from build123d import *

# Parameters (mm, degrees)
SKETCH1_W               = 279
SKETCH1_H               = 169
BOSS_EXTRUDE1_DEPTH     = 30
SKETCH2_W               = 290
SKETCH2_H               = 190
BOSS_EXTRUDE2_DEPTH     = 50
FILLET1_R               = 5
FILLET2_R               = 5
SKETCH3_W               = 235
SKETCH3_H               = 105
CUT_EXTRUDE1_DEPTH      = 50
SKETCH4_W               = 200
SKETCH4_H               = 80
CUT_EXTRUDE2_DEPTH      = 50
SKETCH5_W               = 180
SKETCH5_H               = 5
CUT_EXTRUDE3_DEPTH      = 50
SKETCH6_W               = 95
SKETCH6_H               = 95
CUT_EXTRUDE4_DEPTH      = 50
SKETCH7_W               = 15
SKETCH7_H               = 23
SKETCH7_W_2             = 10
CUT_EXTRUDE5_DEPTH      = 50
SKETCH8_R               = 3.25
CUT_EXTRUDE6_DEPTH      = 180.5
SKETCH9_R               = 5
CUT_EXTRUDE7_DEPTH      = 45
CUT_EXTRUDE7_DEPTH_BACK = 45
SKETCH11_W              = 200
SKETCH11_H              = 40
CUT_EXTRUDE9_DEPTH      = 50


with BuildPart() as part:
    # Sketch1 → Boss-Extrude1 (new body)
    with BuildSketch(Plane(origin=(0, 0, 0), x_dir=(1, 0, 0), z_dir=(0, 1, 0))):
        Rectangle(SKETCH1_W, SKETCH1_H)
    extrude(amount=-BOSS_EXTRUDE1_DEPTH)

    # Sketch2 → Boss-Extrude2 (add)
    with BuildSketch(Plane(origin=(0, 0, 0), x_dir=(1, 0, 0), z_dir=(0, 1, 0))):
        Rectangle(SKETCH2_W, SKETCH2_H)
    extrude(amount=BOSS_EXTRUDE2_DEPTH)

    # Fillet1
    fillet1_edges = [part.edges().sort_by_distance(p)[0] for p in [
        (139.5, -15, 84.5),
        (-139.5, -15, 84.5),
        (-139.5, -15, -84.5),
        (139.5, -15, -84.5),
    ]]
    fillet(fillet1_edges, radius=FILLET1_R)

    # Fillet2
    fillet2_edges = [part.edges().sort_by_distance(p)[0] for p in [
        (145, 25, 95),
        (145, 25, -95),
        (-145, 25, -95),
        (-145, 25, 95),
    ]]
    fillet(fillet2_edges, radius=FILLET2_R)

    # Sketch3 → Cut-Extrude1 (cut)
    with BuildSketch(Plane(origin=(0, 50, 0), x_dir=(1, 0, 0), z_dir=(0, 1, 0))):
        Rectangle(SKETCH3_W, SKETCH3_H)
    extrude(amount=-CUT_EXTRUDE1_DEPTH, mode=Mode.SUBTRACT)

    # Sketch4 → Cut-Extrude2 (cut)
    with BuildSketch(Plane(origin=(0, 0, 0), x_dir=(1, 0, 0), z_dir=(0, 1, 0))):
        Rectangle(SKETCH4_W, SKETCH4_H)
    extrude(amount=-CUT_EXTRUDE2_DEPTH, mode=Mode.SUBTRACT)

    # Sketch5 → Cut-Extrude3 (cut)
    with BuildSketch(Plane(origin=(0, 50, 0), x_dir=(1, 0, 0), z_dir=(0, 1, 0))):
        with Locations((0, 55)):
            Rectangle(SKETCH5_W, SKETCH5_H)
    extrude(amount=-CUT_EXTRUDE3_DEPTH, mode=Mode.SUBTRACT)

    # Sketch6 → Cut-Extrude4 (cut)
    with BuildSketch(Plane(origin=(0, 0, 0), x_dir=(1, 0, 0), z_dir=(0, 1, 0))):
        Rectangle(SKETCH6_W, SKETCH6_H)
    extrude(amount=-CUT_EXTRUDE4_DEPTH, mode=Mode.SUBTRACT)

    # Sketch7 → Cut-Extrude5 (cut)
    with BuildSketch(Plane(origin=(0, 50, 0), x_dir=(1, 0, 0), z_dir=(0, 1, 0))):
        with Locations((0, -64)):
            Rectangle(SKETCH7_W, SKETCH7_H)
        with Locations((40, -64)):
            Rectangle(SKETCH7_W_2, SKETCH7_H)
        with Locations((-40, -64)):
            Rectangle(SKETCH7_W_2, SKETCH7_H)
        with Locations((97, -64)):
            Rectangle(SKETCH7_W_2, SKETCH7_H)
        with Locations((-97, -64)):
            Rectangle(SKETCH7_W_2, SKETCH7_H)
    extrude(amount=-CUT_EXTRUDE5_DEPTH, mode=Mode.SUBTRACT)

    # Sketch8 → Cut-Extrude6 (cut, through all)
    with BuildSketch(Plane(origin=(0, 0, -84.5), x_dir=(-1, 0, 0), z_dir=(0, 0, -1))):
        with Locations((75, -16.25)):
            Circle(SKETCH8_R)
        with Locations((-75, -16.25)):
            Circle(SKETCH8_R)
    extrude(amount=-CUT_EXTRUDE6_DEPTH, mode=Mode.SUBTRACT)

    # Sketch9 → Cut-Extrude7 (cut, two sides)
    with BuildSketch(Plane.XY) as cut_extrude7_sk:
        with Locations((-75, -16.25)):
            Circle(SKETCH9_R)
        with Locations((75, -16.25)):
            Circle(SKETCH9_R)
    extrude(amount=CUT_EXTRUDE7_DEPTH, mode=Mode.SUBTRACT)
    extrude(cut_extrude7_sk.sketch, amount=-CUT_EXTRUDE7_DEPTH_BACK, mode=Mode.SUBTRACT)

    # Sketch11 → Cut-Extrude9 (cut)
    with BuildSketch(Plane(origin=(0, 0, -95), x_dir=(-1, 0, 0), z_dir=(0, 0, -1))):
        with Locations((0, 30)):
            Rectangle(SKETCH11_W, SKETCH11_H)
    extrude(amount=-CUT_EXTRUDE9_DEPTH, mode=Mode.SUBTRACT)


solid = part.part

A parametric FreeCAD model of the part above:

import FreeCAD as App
import Part
import Sketcher

V = App.Vector
Q = App.Units.Quantity


def edges_at(feature, points):
    """Names of the edges that pass closest to the given points."""
    edges = feature.Shape.Edges
    near = lambda p: min(range(len(edges)), key=lambda i: edges[i].distToShape(Part.Vertex(*p))[0])
    return sorted({f"Edge{near(p) + 1}" for p in points})

doc = App.newDocument("Part")
params = doc.addObject("Spreadsheet::Sheet", "Params")
for row, (alias, value) in enumerate([
    ("sketch1_width", "279 mm"),
    ("sketch1_height", "169 mm"),
    ("pad1_length", "30 mm"),
    ("sketch2_width", "290 mm"),
    ("sketch2_height", "190 mm"),
    ("pad2_length", "50 mm"),
    ("fillet_radius", "5 mm"),
    ("fillet2_radius", "5 mm"),
    ("sketch3_width", "235 mm"),
    ("sketch3_height", "105 mm"),
    ("pocket1_length", "50 mm"),
    ("sketch4_width", "200 mm"),
    ("sketch4_height", "80 mm"),
    ("pocket2_length", "50 mm"),
    ("sketch5_width", "180 mm"),
    ("sketch5_height", "5 mm"),
    ("pocket3_length", "50 mm"),
    ("sketch6_width", "95 mm"),
    ("pocket4_length", "50 mm"),
    ("sketch7_width", "15 mm"),
    ("sketch7_width2", "10 mm"),
    ("sketch7_height", "23 mm"),
    ("pocket5_length", "50 mm"),
    ("sketch8_diameter", "6.5 mm"),
    ("sketch9_diameter", "10 mm"),
    ("pocket7_length", "45 mm"),
    ("pocket7_length2", "45 mm"),
    ("sketch10_width", "200 mm"),
    ("sketch10_height", "40 mm"),
    ("pocket8_length", "50 mm"),
], start=1):
    params.set(f"A{row}", alias)
    params.set(f"B{row}", "=" + value)
    params.setAlias(f"B{row}", alias)

body = doc.addObject("PartDesign::Body", "Body")

# Sketch on XZ plane
sketch1 = doc.addObject("Sketcher::SketchObject", "Sketch")
body.addObject(sketch1)
sketch1.AttachmentSupport = (doc.XZ_Plane, [""])
sketch1.MapMode = "FlatFace"
sketch1.addGeometry(Part.LineSegment(V(-139.5, -84.5, 0), V(-139.5, 84.5, 0)), False)
sketch1.addGeometry(Part.LineSegment(V(-139.5, 84.5, 0), V(139.5, 84.5, 0)), False)
sketch1.addGeometry(Part.LineSegment(V(139.5, 84.5, 0), V(139.5, -84.5, 0)), False)
sketch1.addGeometry(Part.LineSegment(V(139.5, -84.5, 0), V(-139.5, -84.5, 0)), False)
sketch1.addConstraint(Sketcher.Constraint("Coincident", 0, 2, 1, 1))
sketch1.addConstraint(Sketcher.Constraint("Coincident", 1, 2, 2, 1))
sketch1.addConstraint(Sketcher.Constraint("Coincident", 2, 2, 3, 1))
sketch1.addConstraint(Sketcher.Constraint("Coincident", 3, 2, 0, 1))
sketch1.addConstraint(Sketcher.Constraint("Vertical", 0))
sketch1.addConstraint(Sketcher.Constraint("Horizontal", 1))
sketch1.addConstraint(Sketcher.Constraint("Vertical", 2))
sketch1.addConstraint(Sketcher.Constraint("Horizontal", 3))
sketch1.addConstraint(Sketcher.Constraint("Symmetric", 0, 2, 2, 2, -1, 1))
sketch1.addConstraint(Sketcher.Constraint("DistanceX", 1, 1, 1, 2, Q("279 mm")))
sketch1.addConstraint(Sketcher.Constraint("DistanceY", 0, 1, 0, 2, Q("169 mm")))
sketch1.setExpression("Constraints[9]", "Params.sketch1_width")
sketch1.setExpression("Constraints[10]", "Params.sketch1_height")
pad1 = doc.addObject("PartDesign::Pad", "Pad")
body.addObject(pad1)
pad1.Profile = sketch1
pad1.setExpression("Length", "Params.pad1_length")

# Sketch on XZ plane
sketch2 = doc.addObject("Sketcher::SketchObject", "Sketch001")
body.addObject(sketch2)
sketch2.AttachmentSupport = (doc.XZ_Plane, [""])
sketch2.MapMode = "FlatFace"
sketch2.addGeometry(Part.LineSegment(V(-145, -95, 0), V(-145, 95, 0)), False)
sketch2.addGeometry(Part.LineSegment(V(-145, 95, 0), V(145, 95, 0)), False)
sketch2.addGeometry(Part.LineSegment(V(145, 95, 0), V(145, -95, 0)), False)
sketch2.addGeometry(Part.LineSegment(V(145, -95, 0), V(-145, -95, 0)), False)
sketch2.addConstraint(Sketcher.Constraint("Coincident", 0, 2, 1, 1))
sketch2.addConstraint(Sketcher.Constraint("Coincident", 1, 2, 2, 1))
sketch2.addConstraint(Sketcher.Constraint("Coincident", 2, 2, 3, 1))
sketch2.addConstraint(Sketcher.Constraint("Coincident", 3, 2, 0, 1))
sketch2.addConstraint(Sketcher.Constraint("Vertical", 0))
sketch2.addConstraint(Sketcher.Constraint("Horizontal", 1))
sketch2.addConstraint(Sketcher.Constraint("Vertical", 2))
sketch2.addConstraint(Sketcher.Constraint("Horizontal", 3))
sketch2.addConstraint(Sketcher.Constraint("Symmetric", 0, 2, 2, 2, -1, 1))
sketch2.addConstraint(Sketcher.Constraint("DistanceX", 1, 1, 1, 2, Q("290 mm")))
sketch2.addConstraint(Sketcher.Constraint("DistanceY", 0, 1, 0, 2, Q("190 mm")))
sketch2.setExpression("Constraints[9]", "Params.sketch2_width")
sketch2.setExpression("Constraints[10]", "Params.sketch2_height")
pad2 = doc.addObject("PartDesign::Pad", "Pad001")
body.addObject(pad2)
pad2.Profile = sketch2
pad2.setExpression("Length", "Params.pad2_length")
pad2.Reversed = True
doc.recompute()

fillet = doc.addObject("PartDesign::Fillet", "Fillet")
body.addObject(fillet)
fillet.Base = (pad2, edges_at(pad2, [
    (139.5, -15, 84.5),
    (-139.5, -15, 84.5),
    (-139.5, -15, -84.5),
    (139.5, -15, -84.5),
]))
fillet.setExpression("Radius", "Params.fillet_radius")
doc.recompute()

fillet2 = doc.addObject("PartDesign::Fillet", "Fillet001")
body.addObject(fillet2)
fillet2.Base = (fillet, edges_at(fillet, [
    (145, 25, 95),
    (145, 25, -95),
    (-145, 25, -95),
    (-145, 25, 95),
]))
fillet2.setExpression("Radius", "Params.fillet2_radius")

# Sketch on XZ plane
sketch3 = doc.addObject("Sketcher::SketchObject", "Sketch002")
body.addObject(sketch3)
sketch3.AttachmentSupport = (doc.XZ_Plane, [""])
sketch3.MapMode = "FlatFace"
sketch3.AttachmentOffset = App.Placement(V(0, 0, -50), App.Rotation())
sketch3.addGeometry(Part.LineSegment(V(-117.5, -52.5, 0), V(-117.5, 52.5, 0)), False)
sketch3.addGeometry(Part.LineSegment(V(-117.5, 52.5, 0), V(117.5, 52.5, 0)), False)
sketch3.addGeometry(Part.LineSegment(V(117.5, 52.5, 0), V(117.5, -52.5, 0)), False)
sketch3.addGeometry(Part.LineSegment(V(117.5, -52.5, 0), V(-117.5, -52.5, 0)), False)
sketch3.addConstraint(Sketcher.Constraint("Coincident", 0, 2, 1, 1))
sketch3.addConstraint(Sketcher.Constraint("Coincident", 1, 2, 2, 1))
sketch3.addConstraint(Sketcher.Constraint("Coincident", 2, 2, 3, 1))
sketch3.addConstraint(Sketcher.Constraint("Coincident", 3, 2, 0, 1))
sketch3.addConstraint(Sketcher.Constraint("Vertical", 0))
sketch3.addConstraint(Sketcher.Constraint("Horizontal", 1))
sketch3.addConstraint(Sketcher.Constraint("Vertical", 2))
sketch3.addConstraint(Sketcher.Constraint("Horizontal", 3))
sketch3.addConstraint(Sketcher.Constraint("Symmetric", 0, 2, 2, 2, -1, 1))
sketch3.addConstraint(Sketcher.Constraint("DistanceX", 1, 1, 1, 2, Q("235 mm")))
sketch3.addConstraint(Sketcher.Constraint("DistanceY", 0, 1, 0, 2, Q("105 mm")))
sketch3.setExpression("Constraints[9]", "Params.sketch3_width")
sketch3.setExpression("Constraints[10]", "Params.sketch3_height")
pocket1 = doc.addObject("PartDesign::Pocket", "Pocket")
body.addObject(pocket1)
pocket1.Profile = sketch3
pocket1.setExpression("Length", "Params.pocket1_length")
pocket1.Reversed = True

# Sketch on XZ plane
sketch4 = doc.addObject("Sketcher::SketchObject", "Sketch003")
body.addObject(sketch4)
sketch4.AttachmentSupport = (doc.XZ_Plane, [""])
sketch4.MapMode = "FlatFace"
sketch4.addGeometry(Part.LineSegment(V(-100, -40, 0), V(-100, 40, 0)), False)
sketch4.addGeometry(Part.LineSegment(V(-100, 40, 0), V(100, 40, 0)), False)
sketch4.addGeometry(Part.LineSegment(V(100, 40, 0), V(100, -40, 0)), False)
sketch4.addGeometry(Part.LineSegment(V(100, -40, 0), V(-100, -40, 0)), False)
sketch4.addConstraint(Sketcher.Constraint("Coincident", 0, 2, 1, 1))
sketch4.addConstraint(Sketcher.Constraint("Coincident", 1, 2, 2, 1))
sketch4.addConstraint(Sketcher.Constraint("Coincident", 2, 2, 3, 1))
sketch4.addConstraint(Sketcher.Constraint("Coincident", 3, 2, 0, 1))
sketch4.addConstraint(Sketcher.Constraint("Vertical", 0))
sketch4.addConstraint(Sketcher.Constraint("Horizontal", 1))
sketch4.addConstraint(Sketcher.Constraint("Vertical", 2))
sketch4.addConstraint(Sketcher.Constraint("Horizontal", 3))
sketch4.addConstraint(Sketcher.Constraint("Symmetric", 0, 2, 2, 2, -1, 1))
sketch4.addConstraint(Sketcher.Constraint("DistanceX", 1, 1, 1, 2, Q("200 mm")))
sketch4.addConstraint(Sketcher.Constraint("DistanceY", 0, 1, 0, 2, Q("80 mm")))
sketch4.setExpression("Constraints[9]", "Params.sketch4_width")
sketch4.setExpression("Constraints[10]", "Params.sketch4_height")
pocket2 = doc.addObject("PartDesign::Pocket", "Pocket001")
body.addObject(pocket2)
pocket2.Profile = sketch4
pocket2.setExpression("Length", "Params.pocket2_length")
pocket2.Reversed = True

# Sketch on XZ plane
sketch5 = doc.addObject("Sketcher::SketchObject", "Sketch004")
body.addObject(sketch5)
sketch5.AttachmentSupport = (doc.XZ_Plane, [""])
sketch5.MapMode = "FlatFace"
sketch5.AttachmentOffset = App.Placement(V(0, 0, -50), App.Rotation())
sketch5.addGeometry(Part.LineSegment(V(-90, -57.5, 0), V(-90, -52.5, 0)), False)
sketch5.addGeometry(Part.LineSegment(V(-90, -52.5, 0), V(90, -52.5, 0)), False)
sketch5.addGeometry(Part.LineSegment(V(90, -52.5, 0), V(90, -57.5, 0)), False)
sketch5.addGeometry(Part.LineSegment(V(90, -57.5, 0), V(-90, -57.5, 0)), False)
sketch5.addConstraint(Sketcher.Constraint("Coincident", 0, 2, 1, 1))
sketch5.addConstraint(Sketcher.Constraint("Coincident", 1, 2, 2, 1))
sketch5.addConstraint(Sketcher.Constraint("Coincident", 2, 2, 3, 1))
sketch5.addConstraint(Sketcher.Constraint("Coincident", 3, 2, 0, 1))
sketch5.addConstraint(Sketcher.Constraint("Vertical", 0))
sketch5.addConstraint(Sketcher.Constraint("Horizontal", 1))
sketch5.addConstraint(Sketcher.Constraint("Vertical", 2))
sketch5.addConstraint(Sketcher.Constraint("Horizontal", 3))
sketch5.addConstraint(Sketcher.Constraint("DistanceX", 1, 1, 1, 2, Q("180 mm")))
sketch5.addConstraint(Sketcher.Constraint("DistanceY", 0, 1, 0, 2, Q("5 mm")))
sketch5.addConstraint(Sketcher.Constraint("DistanceX", 0, 2, -1, 1, Q("90 mm")))
sketch5.addConstraint(Sketcher.Constraint("DistanceY", 0, 2, -1, 1, Q("52.5 mm")))
sketch5.setExpression("Constraints[8]", "Params.sketch5_width")
sketch5.setExpression("Constraints[9]", "Params.sketch5_height")
pocket3 = doc.addObject("PartDesign::Pocket", "Pocket002")
body.addObject(pocket3)
pocket3.Profile = sketch5
pocket3.setExpression("Length", "Params.pocket3_length")
pocket3.Reversed = True

# Sketch on XZ plane
sketch6 = doc.addObject("Sketcher::SketchObject", "Sketch005")
body.addObject(sketch6)
sketch6.AttachmentSupport = (doc.XZ_Plane, [""])
sketch6.MapMode = "FlatFace"
sketch6.addGeometry(Part.LineSegment(V(-47.5, -47.5, 0), V(-47.5, 47.5, 0)), False)
sketch6.addGeometry(Part.LineSegment(V(-47.5, 47.5, 0), V(47.5, 47.5, 0)), False)
sketch6.addGeometry(Part.LineSegment(V(47.5, 47.5, 0), V(47.5, -47.5, 0)), False)
sketch6.addGeometry(Part.LineSegment(V(47.5, -47.5, 0), V(-47.5, -47.5, 0)), False)
sketch6.addConstraint(Sketcher.Constraint("Coincident", 0, 2, 1, 1))
sketch6.addConstraint(Sketcher.Constraint("Coincident", 1, 2, 2, 1))
sketch6.addConstraint(Sketcher.Constraint("Coincident", 2, 2, 3, 1))
sketch6.addConstraint(Sketcher.Constraint("Coincident", 3, 2, 0, 1))
sketch6.addConstraint(Sketcher.Constraint("Vertical", 0))
sketch6.addConstraint(Sketcher.Constraint("Horizontal", 1))
sketch6.addConstraint(Sketcher.Constraint("Vertical", 2))
sketch6.addConstraint(Sketcher.Constraint("Horizontal", 3))
sketch6.addConstraint(Sketcher.Constraint("Symmetric", 0, 2, 2, 2, -1, 1))
sketch6.addConstraint(Sketcher.Constraint("Equal", 3, 0))
sketch6.addConstraint(Sketcher.Constraint("DistanceX", 1, 1, 1, 2, Q("95 mm")))
sketch6.setExpression("Constraints[10]", "Params.sketch6_width")
pocket4 = doc.addObject("PartDesign::Pocket", "Pocket003")
body.addObject(pocket4)
pocket4.Profile = sketch6
pocket4.setExpression("Length", "Params.pocket4_length")
pocket4.Reversed = True

# Sketch on XZ plane
sketch7 = doc.addObject("Sketcher::SketchObject", "Sketch006")
body.addObject(sketch7)
sketch7.AttachmentSupport = (doc.XZ_Plane, [""])
sketch7.MapMode = "FlatFace"
sketch7.AttachmentOffset = App.Placement(V(0, 0, -50), App.Rotation())
sketch7.addGeometry(Part.LineSegment(V(-7.5, 52.5, 0), V(-7.5, 75.5, 0)), False)
sketch7.addGeometry(Part.LineSegment(V(-7.5, 75.5, 0), V(7.5, 75.5, 0)), False)
sketch7.addGeometry(Part.LineSegment(V(7.5, 75.5, 0), V(7.5, 52.5, 0)), False)
sketch7.addGeometry(Part.LineSegment(V(7.5, 52.5, 0), V(-7.5, 52.5, 0)), False)
sketch7.addGeometry(Part.LineSegment(V(35, 52.5, 0), V(35, 75.5, 0)), False)
sketch7.addGeometry(Part.LineSegment(V(35, 75.5, 0), V(45, 75.5, 0)), False)
sketch7.addGeometry(Part.LineSegment(V(45, 75.5, 0), V(45, 52.5, 0)), False)
sketch7.addGeometry(Part.LineSegment(V(45, 52.5, 0), V(35, 52.5, 0)), False)
sketch7.addGeometry(Part.LineSegment(V(-45, 52.5, 0), V(-45, 75.5, 0)), False)
sketch7.addGeometry(Part.LineSegment(V(-45, 75.5, 0), V(-35, 75.5, 0)), False)
sketch7.addGeometry(Part.LineSegment(V(-35, 75.5, 0), V(-35, 52.5, 0)), False)
sketch7.addGeometry(Part.LineSegment(V(-35, 52.5, 0), V(-45, 52.5, 0)), False)
sketch7.addGeometry(Part.LineSegment(V(92, 52.5, 0), V(92, 75.5, 0)), False)
sketch7.addGeometry(Part.LineSegment(V(92, 75.5, 0), V(102, 75.5, 0)), False)
sketch7.addGeometry(Part.LineSegment(V(102, 75.5, 0), V(102, 52.5, 0)), False)
sketch7.addGeometry(Part.LineSegment(V(102, 52.5, 0), V(92, 52.5, 0)), False)
sketch7.addGeometry(Part.LineSegment(V(-102, 52.5, 0), V(-102, 75.5, 0)), False)
sketch7.addGeometry(Part.LineSegment(V(-102, 75.5, 0), V(-92, 75.5, 0)), False)
sketch7.addGeometry(Part.LineSegment(V(-92, 75.5, 0), V(-92, 52.5, 0)), False)
sketch7.addGeometry(Part.LineSegment(V(-92, 52.5, 0), V(-102, 52.5, 0)), False)
sketch7.addConstraint(Sketcher.Constraint("Coincident", 0, 2, 1, 1))
sketch7.addConstraint(Sketcher.Constraint("Coincident", 1, 2, 2, 1))
sketch7.addConstraint(Sketcher.Constraint("Coincident", 2, 2, 3, 1))
sketch7.addConstraint(Sketcher.Constraint("Coincident", 3, 2, 0, 1))
sketch7.addConstraint(Sketcher.Constraint("Coincident", 4, 2, 5, 1))
sketch7.addConstraint(Sketcher.Constraint("Coincident", 5, 2, 6, 1))
sketch7.addConstraint(Sketcher.Constraint("Coincident", 6, 2, 7, 1))
sketch7.addConstraint(Sketcher.Constraint("Coincident", 7, 2, 4, 1))
sketch7.addConstraint(Sketcher.Constraint("Coincident", 8, 2, 9, 1))
sketch7.addConstraint(Sketcher.Constraint("Coincident", 9, 2, 10, 1))
sketch7.addConstraint(Sketcher.Constraint("Coincident", 10, 2, 11, 1))
sketch7.addConstraint(Sketcher.Constraint("Coincident", 11, 2, 8, 1))
sketch7.addConstraint(Sketcher.Constraint("Coincident", 12, 2, 13, 1))
sketch7.addConstraint(Sketcher.Constraint("Coincident", 13, 2, 14, 1))
sketch7.addConstraint(Sketcher.Constraint("Coincident", 14, 2, 15, 1))
sketch7.addConstraint(Sketcher.Constraint("Coincident", 15, 2, 12, 1))
sketch7.addConstraint(Sketcher.Constraint("Coincident", 16, 2, 17, 1))
sketch7.addConstraint(Sketcher.Constraint("Coincident", 17, 2, 18, 1))
sketch7.addConstraint(Sketcher.Constraint("Coincident", 18, 2, 19, 1))
sketch7.addConstraint(Sketcher.Constraint("Coincident", 19, 2, 16, 1))
sketch7.addConstraint(Sketcher.Constraint("Vertical", 0))
sketch7.addConstraint(Sketcher.Constraint("Horizontal", 1))
sketch7.addConstraint(Sketcher.Constraint("Vertical", 2))
sketch7.addConstraint(Sketcher.Constraint("Horizontal", 3))
sketch7.addConstraint(Sketcher.Constraint("Vertical", 4))
sketch7.addConstraint(Sketcher.Constraint("Horizontal", 5))
sketch7.addConstraint(Sketcher.Constraint("Vertical", 6))
sketch7.addConstraint(Sketcher.Constraint("Horizontal", 7))
sketch7.addConstraint(Sketcher.Constraint("Vertical", 8))
sketch7.addConstraint(Sketcher.Constraint("Horizontal", 9))
sketch7.addConstraint(Sketcher.Constraint("Vertical", 10))
sketch7.addConstraint(Sketcher.Constraint("Horizontal", 11))
sketch7.addConstraint(Sketcher.Constraint("Vertical", 12))
sketch7.addConstraint(Sketcher.Constraint("Horizontal", 13))
sketch7.addConstraint(Sketcher.Constraint("Vertical", 14))
sketch7.addConstraint(Sketcher.Constraint("Horizontal", 15))
sketch7.addConstraint(Sketcher.Constraint("Vertical", 16))
sketch7.addConstraint(Sketcher.Constraint("Horizontal", 17))
sketch7.addConstraint(Sketcher.Constraint("Vertical", 18))
sketch7.addConstraint(Sketcher.Constraint("Horizontal", 19))
sketch7.addConstraint(Sketcher.Constraint("Symmetric", 5, 2, 8, 2, -2))
sketch7.addConstraint(Sketcher.Constraint("Symmetric", 7, 2, 10, 2, -2))
sketch7.addConstraint(Sketcher.Constraint("Symmetric", 13, 2, 16, 2, -2))
sketch7.addConstraint(Sketcher.Constraint("Symmetric", 15, 2, 18, 2, -2))
sketch7.addConstraint(Sketcher.Constraint("Horizontal", 1, 2, 4, 2))
sketch7.addConstraint(Sketcher.Constraint("Horizontal", 3, 2, 6, 2))
sketch7.addConstraint(Sketcher.Constraint("Horizontal", 9, 2, 12, 2))
sketch7.addConstraint(Sketcher.Constraint("Horizontal", 11, 2, 14, 2))
sketch7.addConstraint(Sketcher.Constraint("Equal", 11, 13))
sketch7.addConstraint(Sketcher.Constraint("DistanceX", 1, 1, 1, 2, Q("15 mm")))
sketch7.addConstraint(Sketcher.Constraint("DistanceX", 5, 1, 5, 2, Q("10 mm")))
sketch7.addConstraint(Sketcher.Constraint("DistanceY", 0, 1, 0, 2, Q("23 mm")))
sketch7.addConstraint(Sketcher.Constraint("DistanceX", -1, 1, 4, 2, Q("35 mm")))
sketch7.addConstraint(Sketcher.Constraint("DistanceX", -1, 1, 12, 2, Q("92 mm")))
sketch7.addConstraint(Sketcher.Constraint("DistanceX", 0, 2, -1, 1, Q("7.5 mm")))
sketch7.addConstraint(Sketcher.Constraint("DistanceY", -1, 1, 0, 2, Q("75.5 mm")))
sketch7.setExpression("Constraints[49]", "Params.sketch7_width")
sketch7.setExpression("Constraints[50]", "Params.sketch7_width2")
sketch7.setExpression("Constraints[51]", "Params.sketch7_height")
pocket5 = doc.addObject("PartDesign::Pocket", "Pocket004")
body.addObject(pocket5)
pocket5.Profile = sketch7
pocket5.setExpression("Length", "Params.pocket5_length")
pocket5.Reversed = True

# Sketch on XY plane
sketch8 = doc.addObject("Sketcher::SketchObject", "Sketch007")
body.addObject(sketch8)
sketch8.AttachmentSupport = (doc.XY_Plane, [""])
sketch8.MapMode = "FlatFace"
sketch8.AttachmentOffset = App.Placement(V(0, 0, -84.5), App.Rotation())
sketch8.addGeometry(Part.Circle(V(-75, -16.25, 0), V(0, 0, 1), 3.25), False)
sketch8.addGeometry(Part.Circle(V(75, -16.25, 0), V(0, 0, 1), 3.25), False)
sketch8.addConstraint(Sketcher.Constraint("Equal", 0, 1))
sketch8.addConstraint(Sketcher.Constraint("Symmetric", 0, 3, 1, 3, -2))
sketch8.addConstraint(Sketcher.Constraint("Diameter", 0, Q("6.5 mm")))
sketch8.addConstraint(Sketcher.Constraint("DistanceX", 0, 3, -1, 1, Q("75 mm")))
sketch8.addConstraint(Sketcher.Constraint("DistanceY", 0, 3, -1, 1, Q("16.25 mm")))
sketch8.setExpression("Constraints[2]", "Params.sketch8_diameter")
pocket6 = doc.addObject("PartDesign::Pocket", "Pocket005")
body.addObject(pocket6)
pocket6.Profile = sketch8
pocket6.Type = "ThroughAll"
pocket6.Reversed = True

# Sketch on XY plane
sketch9 = doc.addObject("Sketcher::SketchObject", "Sketch008")
body.addObject(sketch9)
sketch9.AttachmentSupport = (doc.XY_Plane, [""])
sketch9.MapMode = "FlatFace"
sketch9.addGeometry(Part.Circle(V(-75, -16.25, 0), V(0, 0, 1), 5), False)
sketch9.addGeometry(Part.Circle(V(75, -16.25, 0), V(0, 0, 1), 5), False)
sketch9.addConstraint(Sketcher.Constraint("Equal", 0, 1))
sketch9.addConstraint(Sketcher.Constraint("Symmetric", 0, 3, 1, 3, -2))
sketch9.addConstraint(Sketcher.Constraint("Diameter", 0, Q("10 mm")))
sketch9.addConstraint(Sketcher.Constraint("DistanceX", 0, 3, -1, 1, Q("75 mm")))
sketch9.addConstraint(Sketcher.Constraint("DistanceY", 0, 3, -1, 1, Q("16.25 mm")))
sketch9.setExpression("Constraints[2]", "Params.sketch9_diameter")
pocket7 = doc.addObject("PartDesign::Pocket", "Pocket006")
body.addObject(pocket7)
pocket7.Profile = sketch9
pocket7.Type = "TwoLengths"
pocket7.setExpression("Length", "Params.pocket7_length")
pocket7.setExpression("Length2", "Params.pocket7_length2")
pocket7.Reversed = True

# Sketch on XY plane
sketch10 = doc.addObject("Sketcher::SketchObject", "Sketch009")
body.addObject(sketch10)
sketch10.AttachmentSupport = (doc.XY_Plane, [""])
sketch10.MapMode = "FlatFace"
sketch10.AttachmentOffset = App.Placement(V(0, 0, -95), App.Rotation())
sketch10.addGeometry(Part.LineSegment(V(100, 50, 0), V(100, 10, 0)), False)
sketch10.addGeometry(Part.LineSegment(V(100, 10, 0), V(-100, 10, 0)), False)
sketch10.addGeometry(Part.LineSegment(V(-100, 10, 0), V(-100, 50, 0)), False)
sketch10.addGeometry(Part.LineSegment(V(-100, 50, 0), V(100, 50, 0)), False)
sketch10.addConstraint(Sketcher.Constraint("Coincident", 0, 2, 1, 1))
sketch10.addConstraint(Sketcher.Constraint("Coincident", 1, 2, 2, 1))
sketch10.addConstraint(Sketcher.Constraint("Coincident", 2, 2, 3, 1))
sketch10.addConstraint(Sketcher.Constraint("Coincident", 3, 2, 0, 1))
sketch10.addConstraint(Sketcher.Constraint("Vertical", 0))
sketch10.addConstraint(Sketcher.Constraint("Horizontal", 1))
sketch10.addConstraint(Sketcher.Constraint("Vertical", 2))
sketch10.addConstraint(Sketcher.Constraint("Horizontal", 3))
sketch10.addConstraint(Sketcher.Constraint("DistanceX", 1, 2, 1, 1, Q("200 mm")))
sketch10.addConstraint(Sketcher.Constraint("DistanceY", 0, 2, 0, 1, Q("40 mm")))
sketch10.addConstraint(Sketcher.Constraint("DistanceX", -1, 1, 0, 2, Q("100 mm")))
sketch10.addConstraint(Sketcher.Constraint("DistanceY", -1, 1, 0, 2, Q("10 mm")))
sketch10.setExpression("Constraints[8]", "Params.sketch10_width")
sketch10.setExpression("Constraints[9]", "Params.sketch10_height")
pocket8 = doc.addObject("PartDesign::Pocket", "Pocket007")
body.addObject(pocket8)
pocket8.Profile = sketch10
pocket8.setExpression("Length", "Params.pocket8_length")
pocket8.Reversed = True

doc.recompute()
